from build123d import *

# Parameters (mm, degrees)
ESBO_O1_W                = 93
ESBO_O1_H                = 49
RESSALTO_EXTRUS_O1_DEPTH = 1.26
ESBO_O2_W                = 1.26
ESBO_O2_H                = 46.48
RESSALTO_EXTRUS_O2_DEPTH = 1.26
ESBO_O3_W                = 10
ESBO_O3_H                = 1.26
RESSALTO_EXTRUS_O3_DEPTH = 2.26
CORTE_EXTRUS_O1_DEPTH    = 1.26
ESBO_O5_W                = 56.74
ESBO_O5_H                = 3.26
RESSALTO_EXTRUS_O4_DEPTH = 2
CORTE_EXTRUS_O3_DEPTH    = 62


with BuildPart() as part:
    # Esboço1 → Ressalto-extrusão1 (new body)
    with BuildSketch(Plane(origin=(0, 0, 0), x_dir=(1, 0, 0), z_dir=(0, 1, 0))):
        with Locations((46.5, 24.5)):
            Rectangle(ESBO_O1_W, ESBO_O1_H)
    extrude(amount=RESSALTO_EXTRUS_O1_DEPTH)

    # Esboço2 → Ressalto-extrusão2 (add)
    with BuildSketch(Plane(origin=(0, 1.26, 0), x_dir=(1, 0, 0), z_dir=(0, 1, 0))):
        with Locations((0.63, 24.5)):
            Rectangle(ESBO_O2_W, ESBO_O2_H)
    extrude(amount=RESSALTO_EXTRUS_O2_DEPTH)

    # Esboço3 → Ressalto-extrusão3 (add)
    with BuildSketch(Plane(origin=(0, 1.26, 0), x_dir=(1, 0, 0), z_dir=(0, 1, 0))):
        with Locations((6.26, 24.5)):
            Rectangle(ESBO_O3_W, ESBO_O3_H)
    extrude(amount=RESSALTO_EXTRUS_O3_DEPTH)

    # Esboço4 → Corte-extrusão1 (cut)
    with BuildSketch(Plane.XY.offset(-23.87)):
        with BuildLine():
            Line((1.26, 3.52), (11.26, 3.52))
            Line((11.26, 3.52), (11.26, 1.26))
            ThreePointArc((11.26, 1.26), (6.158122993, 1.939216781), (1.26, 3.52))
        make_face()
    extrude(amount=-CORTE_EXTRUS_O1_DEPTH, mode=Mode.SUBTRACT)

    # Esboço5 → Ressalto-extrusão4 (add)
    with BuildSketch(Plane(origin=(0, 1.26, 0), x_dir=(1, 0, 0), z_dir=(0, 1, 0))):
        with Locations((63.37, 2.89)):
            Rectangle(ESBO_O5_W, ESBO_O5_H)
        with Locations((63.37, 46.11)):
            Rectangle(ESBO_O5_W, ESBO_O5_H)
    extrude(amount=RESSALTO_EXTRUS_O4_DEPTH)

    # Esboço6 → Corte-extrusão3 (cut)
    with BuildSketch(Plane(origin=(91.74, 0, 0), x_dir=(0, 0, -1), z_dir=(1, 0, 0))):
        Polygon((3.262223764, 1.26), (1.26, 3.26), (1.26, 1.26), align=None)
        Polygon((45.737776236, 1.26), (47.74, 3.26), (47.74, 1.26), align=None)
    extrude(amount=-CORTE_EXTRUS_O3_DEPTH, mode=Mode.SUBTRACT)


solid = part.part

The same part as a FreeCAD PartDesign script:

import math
import FreeCAD as App
import Part
import Sketcher

V = App.Vector
Q = App.Units.Quantity

doc = App.newDocument("Part")
body = doc.addObject("PartDesign::Body", "Body")

sketch1 = body.newObject("Sketcher::SketchObject", "Sketch")
sketch1.AttachmentSupport = (doc.getObject("XZ_Plane"), [""])
sketch1.MapMode = "FlatFace"
sketch1.addGeometry(Part.LineSegment(V(0, -49, 0), V(0, 0, 0)), False)
sketch1.addGeometry(Part.LineSegment(V(0, 0, 0), V(93, 0, 0)), False)
sketch1.addGeometry(Part.LineSegment(V(93, 0, 0), V(93, -49, 0)), False)
sketch1.addGeometry(Part.LineSegment(V(93, -49, 0), V(0, -49, 0)), False)
sketch1.addConstraint(Sketcher.Constraint("Coincident", 0, 2, 1, 1))
sketch1.addConstraint(Sketcher.Constraint("Coincident", 1, 2, 2, 1))
sketch1.addConstraint(Sketcher.Constraint("Coincident", 2, 2, 3, 1))
sketch1.addConstraint(Sketcher.Constraint("Coincident", 3, 2, 0, 1))
sketch1.addConstraint(Sketcher.Constraint("Vertical", 0))
sketch1.addConstraint(Sketcher.Constraint("Horizontal", 1))
sketch1.addConstraint(Sketcher.Constraint("Vertical", 2))
sketch1.addConstraint(Sketcher.Constraint("Horizontal", 3))
sketch1.addConstraint(Sketcher.Constraint("Coincident", 0, 2, -1, 1))
sketch1.addConstraint(Sketcher.Constraint("DistanceX", 1, 1, 1, 2, Q("93 mm")))
sketch1.addConstraint(Sketcher.Constraint("DistanceY", 0, 1, 0, 2, Q("49 mm")))
pad1 = body.newObject("PartDesign::Pad", "Pad")
pad1.Profile = sketch1
pad1.Length = 1.26
pad1.Reversed = True

sketch2 = body.newObject("Sketcher::SketchObject", "Sketch001")
sketch2.AttachmentSupport = (doc.getObject("XZ_Plane"), [""])
sketch2.MapMode = "FlatFace"
sketch2.AttachmentOffset = App.Placement(V(0, 0, -1.26), App.Rotation())
sketch2.addGeometry(Part.LineSegment(V(0, -47.7, 0), V(0, -1.3, 0)), False)
sketch2.addGeometry(Part.LineSegment(V(0, -1.3, 0), V(1.3, -1.3, 0)), False)
sketch2.addGeometry(Part.LineSegment(V(1.3, -1.3, 0), V(1.3, -47.7, 0)), False)
sketch2.addGeometry(Part.LineSegment(V(1.3, -47.7, 0), V(0, -47.7, 0)), False)
sketch2.addConstraint(Sketcher.Constraint("Coincident", 0, 2, 1, 1))
sketch2.addConstraint(Sketcher.Constraint("Coincident", 1, 2, 2, 1))
sketch2.addConstraint(Sketcher.Constraint("Coincident", 2, 2, 3, 1))
sketch2.addConstraint(Sketcher.Constraint("Coincident", 3, 2, 0, 1))
sketch2.addConstraint(Sketcher.Constraint("Vertical", 0))
sketch2.addConstraint(Sketcher.Constraint("Horizontal", 1))
sketch2.addConstraint(Sketcher.Constraint("Vertical", 2))
sketch2.addConstraint(Sketcher.Constraint("Horizontal", 3))
sketch2.addConstraint(Sketcher.Constraint("PointOnObject", 0, 2, -2))
sketch2.addConstraint(Sketcher.Constraint("DistanceX", 1, 1, 1, 2, Q("1.26 mm")))
sketch2.addConstraint(Sketcher.Constraint("DistanceY", 0, 1, 0, 2, Q("46.48 mm")))
sketch2.addConstraint(Sketcher.Constraint("DistanceY", 0, 2, -1, 1, Q("1.26 mm")))
pad2 = body.newObject("PartDesign::Pad", "Pad001")
pad2.Profile = sketch2
pad2.Length = 1.26
pad2.Reversed = True

sketch3 = body.newObject("Sketcher::SketchObject", "Sketch002")
sketch3.AttachmentSupport = (doc.getObject("XZ_Plane"), [""])
sketch3.MapMode = "FlatFace"
sketch3.AttachmentOffset = App.Placement(V(0, 0, -1.26), App.Rotation())
sketch3.addGeometry(Part.LineSegment(V(1.3, -25.1, 0), V(1.3, -23.9, 0)), False)
sketch3.addGeometry(Part.LineSegment(V(1.3, -23.9, 0), V(11.3, -23.9, 0)), False)
sketch3.addGeometry(Part.LineSegment(V(11.3, -23.9, 0), V(11.3, -25.1, 0)), False)
sketch3.addGeometry(Part.LineSegment(V(11.3, -25.1, 0), V(1.3, -25.1, 0)), False)
sketch3.addConstraint(Sketcher.Constraint("Coincident", 0, 2, 1, 1))
sketch3.addConstraint(Sketcher.Constraint("Coincident", 1, 2, 2, 1))
sketch3.addConstraint(Sketcher.Constraint("Coincident", 2, 2, 3, 1))
sketch3.addConstraint(Sketcher.Constraint("Coincident", 3, 2, 0, 1))
sketch3.addConstraint(Sketcher.Constraint("Vertical", 0))
sketch3.addConstraint(Sketcher.Constraint("Horizontal", 1))
sketch3.addConstraint(Sketcher.Constraint("Vertical", 2))
sketch3.addConstraint(Sketcher.Constraint("Horizontal", 3))
sketch3.addConstraint(Sketcher.Constraint("DistanceX", 1, 1, 1, 2, Q("10 mm")))
sketch3.addConstraint(Sketcher.Constraint("DistanceY", 0, 1, 0, 2, Q("1.26 mm")))
sketch3.addConstraint(Sketcher.Constraint("DistanceX", -1, 1, 0, 2, Q("1.26 mm")))
sketch3.addConstraint(Sketcher.Constraint("DistanceY", 0, 2, -1, 1, Q("23.87 mm")))
pad3 = body.newObject("PartDesign::Pad", "Pad002")
pad3.Profile = sketch3
pad3.Length = 2.26
pad3.Reversed = True

sketch4 = body.newObject("Sketcher::SketchObject", "Sketch003")
sketch4.AttachmentSupport = (doc.getObject("XY_Plane"), [""])
sketch4.MapMode = "FlatFace"
sketch4.AttachmentOffset = App.Placement(V(0, 0, -23.87), App.Rotation())
sketch4.addGeometry(Part.LineSegment(V(11.3, 3.5, 0), V(1.3, 3.5, 0)), False)
sketch4.addGeometry(Part.ArcOfCircle(Part.Circle(V(12.5, 29.9, 0), V(0, 0, 1), 28.7), math.radians(-113), math.radians(-92)), False)
sketch4.addGeometry(Part.LineSegment(V(11.3, 1.3, 0), V(11.3, 3.5, 0)), False)
sketch4.addConstraint(Sketcher.Constraint("Coincident", 0, 2, 1, 1))
sketch4.addConstraint(Sketcher.Constraint("Coincident", 1, 2, 2, 1))
sketch4.addConstraint(Sketcher.Constraint("Coincident", 2, 2, 0, 1))
sketch4.addConstraint(Sketcher.Constraint("Horizontal", 0))
sketch4.addConstraint(Sketcher.Constraint("Vertical", 2))
sketch4.addConstraint(Sketcher.Constraint("DistanceX", 0, 2, 0, 1, Q("10 mm")))
sketch4.addConstraint(Sketcher.Constraint("DistanceY", 2, 1, 2, 2, Q("2.26 mm")))
sketch4.addConstraint(Sketcher.Constraint("DistanceX", -1, 1, 0, 2, Q("1.26 mm")))
sketch4.addConstraint(Sketcher.Constraint("DistanceY", -1, 1, 0, 2, Q("3.52 mm")))
sketch4.addConstraint(Sketcher.Constraint("Radius", 1, Q("28.659929 mm")))
pocket1 = body.newObject("PartDesign::Pocket", "Pocket")
pocket1.Profile = sketch4
pocket1.Length = 1.26

sketch5 = body.newObject("Sketcher::SketchObject", "Sketch004")
sketch5.AttachmentSupport = (doc.getObject("XZ_Plane"), [""])
sketch5.MapMode = "FlatFace"
sketch5.AttachmentOffset = App.Placement(V(0, 0, -1.26), App.Rotation())
sketch5.addGeometry(Part.LineSegment(V(35, -4.5, 0), V(35, -1.3, 0)), False)
sketch5.addGeometry(Part.LineSegment(V(35, -1.3, 0), V(91.7, -1.3, 0)), False)
sketch5.addGeometry(Part.LineSegment(V(91.7, -1.3, 0), V(91.7, -4.5, 0)), False)
sketch5.addGeometry(Part.LineSegment(V(91.7, -4.5, 0), V(35, -4.5, 0)), False)
sketch5.addGeometry(Part.LineSegment(V(35, -47.7, 0), V(35, -44.5, 0)), False)
sketch5.addGeometry(Part.LineSegment(V(35, -44.5, 0), V(91.7, -44.5, 0)), False)
sketch5.addGeometry(Part.LineSegment(V(91.7, -44.5, 0), V(91.7, -47.7, 0)), False)
sketch5.addGeometry(Part.LineSegment(V(91.7, -47.7, 0), V(35, -47.7, 0)), False)
sketch5.addConstraint(Sketcher.Constraint("Coincident", 0, 2, 1, 1))
sketch5.addConstraint(Sketcher.Constraint("Coincident", 1, 2, 2, 1))
sketch5.addConstraint(Sketcher.Constraint("Coincident", 2, 2, 3, 1))
sketch5.addConstraint(Sketcher.Constraint("Coincident", 3, 2, 0, 1))
sketch5.addConstraint(Sketcher.Constraint("Coincident", 4, 2, 5, 1))
sketch5.addConstraint(Sketcher.Constraint("Coincident", 5, 2, 6, 1))
sketch5.addConstraint(Sketcher.Constraint("Coincident", 6, 2, 7, 1))
sketch5.addConstraint(Sketcher.Constraint("Coincident", 7, 2, 4, 1))
sketch5.addConstraint(Sketcher.Constraint("Vertical", 0))
sketch5.addConstraint(Sketcher.Constraint("Horizontal", 1))
sketch5.addConstraint(Sketcher.Constraint("Vertical", 2))
sketch5.addConstraint(Sketcher.Constraint("Horizontal", 3))
sketch5.addConstraint(Sketcher.Constraint("Vertical", 4))
sketch5.addConstraint(Sketcher.Constraint("Horizontal", 5))
sketch5.addConstraint(Sketcher.Constraint("Vertical", 6))
sketch5.addConstraint(Sketcher.Constraint("Horizontal", 7))
sketch5.addConstraint(Sketcher.Constraint("Vertical", 3, 2, 4, 2))
sketch5.addConstraint(Sketcher.Constraint("Vertical", 2, 2, 5, 2))
sketch5.addConstraint(Sketcher.Constraint("Equal", 2, 4))
sketch5.addConstraint(Sketcher.Constraint("DistanceX", -1, 1, 0, 2, Q("35 mm")))
sketch5.addConstraint(Sketcher.Constraint("DistanceX", 1, 1, 1, 2, Q("56.74 mm")))
sketch5.addConstraint(Sketcher.Constraint("DistanceY", 0, 1, 0, 2, Q("3.26 mm")))
sketch5.addConstraint(Sketcher.Constraint("DistanceY", 0, 2, -1, 1, Q("1.26 mm")))
sketch5.addConstraint(Sketcher.Constraint("DistanceY", 4, 2, -1, 1, Q("44.48 mm")))
pad4 = body.newObject("PartDesign::Pad", "Pad003")
pad4.Profile = sketch5
pad4.Length = 2
pad4.Reversed = True

sketch6 = body.newObject("Sketcher::SketchObject", "Sketch005")
sketch6.AttachmentSupport = (doc.getObject("YZ_Plane"), [""])
sketch6.MapMode = "FlatFace"
sketch6.AttachmentOffset = App.Placement(V(0, 0, 91.74), App.Rotation())
sketch6.addGeometry(Part.LineSegment(V(1.3, -3.3, 0), V(3.3, -1.3, 0)), False)
sketch6.addGeometry(Part.LineSegment(V(3.3, -1.3, 0), V(1.3, -1.3, 0)), False)
sketch6.addGeometry(Part.LineSegment(V(1.3, -1.3, 0), V(1.3, -3.3, 0)), False)
sketch6.addGeometry(Part.LineSegment(V(3.3, -47.7, 0), V(1.3, -45.7, 0)), False)
sketch6.addGeometry(Part.LineSegment(V(1.3, -45.7, 0), V(1.3, -47.7, 0)), False)
sketch6.addGeometry(Part.LineSegment(V(1.3, -47.7, 0), V(3.3, -47.7, 0)), False)
sketch6.addConstraint(Sketcher.Constraint("Coincident", 0, 2, 1, 1))
sketch6.addConstraint(Sketcher.Constraint("Coincident", 1, 2, 2, 1))
sketch6.addConstraint(Sketcher.Constraint("Coincident", 2, 2, 0, 1))
sketch6.addConstraint(Sketcher.Constraint("Coincident", 3, 2, 4, 1))
sketch6.addConstraint(Sketcher.Constraint("Coincident", 4, 2, 5, 1))
sketch6.addConstraint(Sketcher.Constraint("Coincident", 5, 2, 3, 1))
sketch6.addConstraint(Sketcher.Constraint("Horizontal", 1))
sketch6.addConstraint(Sketcher.Constraint("Vertical", 2))
sketch6.addConstraint(Sketcher.Constraint("Vertical", 4))
sketch6.addConstraint(Sketcher.Constraint("Horizontal", 5))
sketch6.addConstraint(Sketcher.Constraint("Vertical", 2, 2, 3, 2))
sketch6.addConstraint(Sketcher.Constraint("Vertical", 0, 2, 5, 2))
sketch6.addConstraint(Sketcher.Constraint("Equal", 2, 4))
sketch6.addConstraint(Sketcher.Constraint("DistanceX", 1, 2, 1, 1, Q("2 mm")))
sketch6.addConstraint(Sketcher.Constraint("Distance", 0, Q("2.83 mm")))
sketch6.addConstraint(Sketcher.Constraint("DistanceX", -1, 1, 0, 2, Q("3.26 mm")))
sketch6.addConstraint(Sketcher.Constraint("DistanceY", 0, 2, -1, 1, Q("1.26 mm")))
sketch6.addConstraint(Sketcher.Constraint("DistanceY", 4, 2, -1, 1, Q("47.74 mm")))
pocket2 = body.newObject("PartDesign::Pocket", "Pocket001")
pocket2.Profile = sketch6
pocket2.Length = 62

doc.recompute()
